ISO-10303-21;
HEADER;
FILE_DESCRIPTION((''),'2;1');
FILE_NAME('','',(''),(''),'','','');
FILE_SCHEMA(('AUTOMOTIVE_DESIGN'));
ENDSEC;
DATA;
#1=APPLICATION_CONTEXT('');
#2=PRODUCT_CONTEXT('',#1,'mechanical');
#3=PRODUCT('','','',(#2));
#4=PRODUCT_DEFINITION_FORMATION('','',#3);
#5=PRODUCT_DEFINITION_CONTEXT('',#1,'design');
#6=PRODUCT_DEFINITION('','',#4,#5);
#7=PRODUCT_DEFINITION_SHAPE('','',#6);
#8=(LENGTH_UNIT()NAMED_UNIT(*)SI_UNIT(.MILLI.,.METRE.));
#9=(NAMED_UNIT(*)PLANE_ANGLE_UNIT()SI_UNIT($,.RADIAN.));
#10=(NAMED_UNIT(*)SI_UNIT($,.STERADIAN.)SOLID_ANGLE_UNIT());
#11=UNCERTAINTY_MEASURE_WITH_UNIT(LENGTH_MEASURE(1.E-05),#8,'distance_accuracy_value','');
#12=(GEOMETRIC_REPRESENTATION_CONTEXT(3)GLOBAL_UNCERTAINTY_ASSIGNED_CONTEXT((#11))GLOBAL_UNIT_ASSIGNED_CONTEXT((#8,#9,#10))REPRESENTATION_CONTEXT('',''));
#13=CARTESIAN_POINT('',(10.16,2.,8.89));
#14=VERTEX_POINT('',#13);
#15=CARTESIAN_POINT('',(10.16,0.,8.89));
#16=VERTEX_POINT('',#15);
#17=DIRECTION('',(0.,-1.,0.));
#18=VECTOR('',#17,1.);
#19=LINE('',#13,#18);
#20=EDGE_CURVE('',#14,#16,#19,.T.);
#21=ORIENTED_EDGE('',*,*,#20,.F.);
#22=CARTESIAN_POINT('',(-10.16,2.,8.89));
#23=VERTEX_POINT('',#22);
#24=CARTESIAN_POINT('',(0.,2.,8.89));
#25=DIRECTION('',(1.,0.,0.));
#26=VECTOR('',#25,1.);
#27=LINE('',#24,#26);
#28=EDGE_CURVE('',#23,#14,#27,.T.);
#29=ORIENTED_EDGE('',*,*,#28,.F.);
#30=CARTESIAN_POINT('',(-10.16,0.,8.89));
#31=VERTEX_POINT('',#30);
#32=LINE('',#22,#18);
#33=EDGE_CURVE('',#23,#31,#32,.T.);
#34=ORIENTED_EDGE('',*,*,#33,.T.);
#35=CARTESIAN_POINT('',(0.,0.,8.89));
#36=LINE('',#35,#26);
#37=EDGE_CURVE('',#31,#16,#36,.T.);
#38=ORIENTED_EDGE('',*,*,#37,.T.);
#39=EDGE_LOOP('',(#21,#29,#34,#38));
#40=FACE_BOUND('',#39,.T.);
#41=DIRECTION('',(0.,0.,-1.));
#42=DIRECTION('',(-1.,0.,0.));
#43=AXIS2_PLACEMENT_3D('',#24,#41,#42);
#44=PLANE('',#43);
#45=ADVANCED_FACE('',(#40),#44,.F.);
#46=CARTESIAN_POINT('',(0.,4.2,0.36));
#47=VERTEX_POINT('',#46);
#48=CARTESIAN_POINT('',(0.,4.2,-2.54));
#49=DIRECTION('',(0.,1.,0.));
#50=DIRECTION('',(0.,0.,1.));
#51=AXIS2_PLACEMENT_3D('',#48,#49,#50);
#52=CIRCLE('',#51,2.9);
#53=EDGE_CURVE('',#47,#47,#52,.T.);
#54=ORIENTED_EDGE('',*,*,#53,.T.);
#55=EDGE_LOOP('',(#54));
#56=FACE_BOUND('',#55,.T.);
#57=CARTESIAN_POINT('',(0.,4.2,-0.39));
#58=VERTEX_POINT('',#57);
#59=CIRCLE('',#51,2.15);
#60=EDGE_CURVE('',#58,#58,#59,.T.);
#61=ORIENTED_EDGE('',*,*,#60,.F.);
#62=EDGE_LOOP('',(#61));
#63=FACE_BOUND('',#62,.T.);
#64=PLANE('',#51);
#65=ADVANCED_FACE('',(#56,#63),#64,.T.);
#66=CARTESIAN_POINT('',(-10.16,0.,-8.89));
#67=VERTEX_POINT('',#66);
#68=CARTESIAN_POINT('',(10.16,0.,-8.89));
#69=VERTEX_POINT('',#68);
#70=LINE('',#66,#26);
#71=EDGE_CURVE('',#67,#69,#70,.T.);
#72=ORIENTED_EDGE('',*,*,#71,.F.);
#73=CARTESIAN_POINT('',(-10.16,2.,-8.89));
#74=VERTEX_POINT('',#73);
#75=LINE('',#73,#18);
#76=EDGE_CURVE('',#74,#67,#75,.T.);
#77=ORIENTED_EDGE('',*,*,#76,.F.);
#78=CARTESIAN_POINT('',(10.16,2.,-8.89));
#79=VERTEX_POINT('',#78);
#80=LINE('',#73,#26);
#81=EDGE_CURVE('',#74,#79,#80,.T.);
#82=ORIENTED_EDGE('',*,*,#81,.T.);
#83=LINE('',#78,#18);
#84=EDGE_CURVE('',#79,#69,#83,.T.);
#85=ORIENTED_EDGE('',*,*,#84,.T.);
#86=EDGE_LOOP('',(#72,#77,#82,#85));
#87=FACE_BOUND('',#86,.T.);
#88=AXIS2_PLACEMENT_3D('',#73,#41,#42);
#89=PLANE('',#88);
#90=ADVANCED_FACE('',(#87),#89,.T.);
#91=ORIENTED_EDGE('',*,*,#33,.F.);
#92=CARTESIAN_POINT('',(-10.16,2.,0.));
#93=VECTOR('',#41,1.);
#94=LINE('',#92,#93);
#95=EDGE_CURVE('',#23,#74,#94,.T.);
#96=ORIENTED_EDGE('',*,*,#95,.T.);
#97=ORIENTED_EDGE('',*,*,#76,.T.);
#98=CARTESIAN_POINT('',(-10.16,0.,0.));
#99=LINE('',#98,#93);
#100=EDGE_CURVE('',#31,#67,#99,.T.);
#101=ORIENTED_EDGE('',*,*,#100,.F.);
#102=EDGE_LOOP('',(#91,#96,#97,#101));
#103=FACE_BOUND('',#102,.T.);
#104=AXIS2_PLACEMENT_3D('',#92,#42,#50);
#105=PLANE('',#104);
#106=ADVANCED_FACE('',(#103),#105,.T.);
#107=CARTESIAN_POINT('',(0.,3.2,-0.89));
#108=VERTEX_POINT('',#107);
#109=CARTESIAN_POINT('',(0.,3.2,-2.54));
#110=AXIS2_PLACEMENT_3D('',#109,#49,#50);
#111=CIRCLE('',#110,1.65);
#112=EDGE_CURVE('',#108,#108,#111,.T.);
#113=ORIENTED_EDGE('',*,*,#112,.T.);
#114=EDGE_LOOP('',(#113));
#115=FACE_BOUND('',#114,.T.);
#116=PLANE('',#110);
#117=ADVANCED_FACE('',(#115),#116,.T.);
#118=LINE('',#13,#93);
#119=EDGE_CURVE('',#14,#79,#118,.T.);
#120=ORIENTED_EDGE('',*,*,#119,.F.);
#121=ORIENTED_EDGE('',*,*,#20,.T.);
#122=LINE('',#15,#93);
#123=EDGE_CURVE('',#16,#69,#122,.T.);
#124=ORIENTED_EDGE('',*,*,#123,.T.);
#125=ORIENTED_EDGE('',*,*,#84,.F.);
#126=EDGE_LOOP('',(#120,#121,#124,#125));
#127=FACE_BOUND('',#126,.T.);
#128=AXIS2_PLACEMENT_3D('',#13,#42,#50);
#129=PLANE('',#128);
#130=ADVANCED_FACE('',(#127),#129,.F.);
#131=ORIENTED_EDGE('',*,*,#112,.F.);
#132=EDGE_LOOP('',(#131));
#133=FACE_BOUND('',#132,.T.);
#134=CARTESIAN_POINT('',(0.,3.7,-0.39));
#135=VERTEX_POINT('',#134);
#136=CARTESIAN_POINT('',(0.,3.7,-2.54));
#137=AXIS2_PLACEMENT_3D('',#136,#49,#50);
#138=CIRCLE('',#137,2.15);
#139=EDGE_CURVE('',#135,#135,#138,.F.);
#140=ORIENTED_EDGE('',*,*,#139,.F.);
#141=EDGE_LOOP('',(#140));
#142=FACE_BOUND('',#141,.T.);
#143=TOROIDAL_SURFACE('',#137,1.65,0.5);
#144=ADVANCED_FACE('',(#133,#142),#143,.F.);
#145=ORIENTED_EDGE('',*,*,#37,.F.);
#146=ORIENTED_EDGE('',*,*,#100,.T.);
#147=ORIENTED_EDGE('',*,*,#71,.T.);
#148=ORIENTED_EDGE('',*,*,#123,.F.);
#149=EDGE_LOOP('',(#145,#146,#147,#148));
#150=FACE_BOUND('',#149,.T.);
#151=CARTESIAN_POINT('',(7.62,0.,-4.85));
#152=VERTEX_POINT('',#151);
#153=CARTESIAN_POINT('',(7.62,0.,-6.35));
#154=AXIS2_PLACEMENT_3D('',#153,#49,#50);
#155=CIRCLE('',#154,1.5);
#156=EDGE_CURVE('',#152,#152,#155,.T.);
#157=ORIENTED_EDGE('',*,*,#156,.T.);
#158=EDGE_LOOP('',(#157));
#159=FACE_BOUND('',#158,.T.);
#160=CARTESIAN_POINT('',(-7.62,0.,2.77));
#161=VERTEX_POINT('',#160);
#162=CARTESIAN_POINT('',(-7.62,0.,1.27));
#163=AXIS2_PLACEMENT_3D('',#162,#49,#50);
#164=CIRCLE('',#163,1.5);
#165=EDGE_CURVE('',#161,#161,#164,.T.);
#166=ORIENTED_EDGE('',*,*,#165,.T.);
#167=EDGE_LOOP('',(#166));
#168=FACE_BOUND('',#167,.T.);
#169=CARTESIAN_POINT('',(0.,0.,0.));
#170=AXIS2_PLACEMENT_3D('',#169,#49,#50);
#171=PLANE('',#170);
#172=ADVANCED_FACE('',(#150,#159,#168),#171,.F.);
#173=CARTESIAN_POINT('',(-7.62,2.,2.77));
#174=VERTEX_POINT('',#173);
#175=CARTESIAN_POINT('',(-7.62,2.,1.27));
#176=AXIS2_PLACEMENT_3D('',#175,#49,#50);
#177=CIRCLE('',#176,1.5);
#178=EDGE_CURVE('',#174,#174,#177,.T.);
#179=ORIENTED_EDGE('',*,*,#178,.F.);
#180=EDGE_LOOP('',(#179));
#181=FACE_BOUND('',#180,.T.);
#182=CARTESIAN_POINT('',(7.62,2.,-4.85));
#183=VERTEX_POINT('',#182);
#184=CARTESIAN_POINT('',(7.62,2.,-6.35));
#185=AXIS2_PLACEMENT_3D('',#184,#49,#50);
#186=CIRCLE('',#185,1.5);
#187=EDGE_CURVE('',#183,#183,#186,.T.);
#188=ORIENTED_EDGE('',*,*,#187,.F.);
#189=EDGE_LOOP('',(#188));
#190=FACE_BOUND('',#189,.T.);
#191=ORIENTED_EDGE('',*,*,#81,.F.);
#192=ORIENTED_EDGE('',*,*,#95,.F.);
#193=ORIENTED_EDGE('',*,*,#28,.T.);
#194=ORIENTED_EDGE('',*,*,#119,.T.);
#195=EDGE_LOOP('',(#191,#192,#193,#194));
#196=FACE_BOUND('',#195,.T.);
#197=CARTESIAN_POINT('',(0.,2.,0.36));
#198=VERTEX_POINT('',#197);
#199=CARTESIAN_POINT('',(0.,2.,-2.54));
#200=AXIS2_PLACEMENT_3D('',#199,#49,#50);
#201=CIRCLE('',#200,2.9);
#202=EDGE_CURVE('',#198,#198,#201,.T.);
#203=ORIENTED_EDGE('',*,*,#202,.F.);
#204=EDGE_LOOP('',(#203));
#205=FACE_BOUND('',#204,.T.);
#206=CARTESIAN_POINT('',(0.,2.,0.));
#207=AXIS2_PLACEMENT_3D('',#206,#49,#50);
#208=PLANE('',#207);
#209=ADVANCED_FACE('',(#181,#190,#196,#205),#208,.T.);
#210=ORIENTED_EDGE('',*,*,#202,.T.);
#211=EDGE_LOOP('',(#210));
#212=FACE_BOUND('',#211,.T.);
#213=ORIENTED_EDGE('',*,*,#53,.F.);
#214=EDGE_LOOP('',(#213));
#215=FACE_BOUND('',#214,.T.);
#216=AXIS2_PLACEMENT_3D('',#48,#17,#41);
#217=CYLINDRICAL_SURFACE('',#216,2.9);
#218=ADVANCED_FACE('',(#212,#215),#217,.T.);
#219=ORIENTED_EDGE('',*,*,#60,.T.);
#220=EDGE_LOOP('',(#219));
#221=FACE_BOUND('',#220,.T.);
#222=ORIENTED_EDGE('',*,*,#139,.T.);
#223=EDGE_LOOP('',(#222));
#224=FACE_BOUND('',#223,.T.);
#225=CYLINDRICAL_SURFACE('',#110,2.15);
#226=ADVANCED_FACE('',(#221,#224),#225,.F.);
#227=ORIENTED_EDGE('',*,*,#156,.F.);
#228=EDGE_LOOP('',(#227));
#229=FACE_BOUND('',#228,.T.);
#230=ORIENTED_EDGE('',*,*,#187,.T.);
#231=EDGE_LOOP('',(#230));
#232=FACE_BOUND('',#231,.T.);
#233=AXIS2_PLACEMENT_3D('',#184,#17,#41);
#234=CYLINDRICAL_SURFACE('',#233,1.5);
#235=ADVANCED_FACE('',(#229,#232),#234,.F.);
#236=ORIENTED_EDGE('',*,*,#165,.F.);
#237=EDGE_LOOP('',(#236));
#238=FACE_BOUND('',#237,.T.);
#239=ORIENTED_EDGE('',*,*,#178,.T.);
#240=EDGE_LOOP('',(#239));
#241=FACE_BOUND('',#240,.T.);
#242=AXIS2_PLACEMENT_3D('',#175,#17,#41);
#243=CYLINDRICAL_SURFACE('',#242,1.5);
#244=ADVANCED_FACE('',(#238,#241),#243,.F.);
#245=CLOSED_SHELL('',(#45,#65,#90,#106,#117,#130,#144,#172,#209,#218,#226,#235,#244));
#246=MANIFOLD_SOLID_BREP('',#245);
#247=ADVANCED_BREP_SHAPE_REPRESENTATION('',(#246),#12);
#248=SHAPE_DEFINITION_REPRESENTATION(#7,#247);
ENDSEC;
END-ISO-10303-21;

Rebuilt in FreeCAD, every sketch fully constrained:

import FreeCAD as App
import Part
import Sketcher
Q = App.Units.Quantity


def edges_at(feature, points):
    """Names of the edges that pass closest to the given points."""
    edges = feature.Shape.Edges
    near = lambda p: min(range(len(edges)), key=lambda i: edges[i].distToShape(Part.Vertex(*p))[0])
    return sorted({f"Edge{near(p) + 1}" for p in points})


def add_polygon(sketch, points):
    """Adds a closed chain of lines whose ends are joined by coincident constraints."""
    first, n = sketch.GeometryCount, len(points)
    for a, b in zip(points, points[1:] + points[:1]):
        sketch.addGeometry(Part.LineSegment(App.Vector(*a, 0), App.Vector(*b, 0)), False)
    for i in range(n):
        sketch.addConstraint(Sketcher.Constraint("Coincident", first + i, 2, first + (i + 1) % n, 1))

doc = App.newDocument("Part")
body = doc.addObject("PartDesign::Body", "Body")

sketch1 = body.newObject("Sketcher::SketchObject", "Sketch")
sketch1.AttachmentSupport = (doc.getObject("XZ_Plane"), [""])
sketch1.MapMode = "FlatFace"
add_polygon(sketch1, [(-10.2, -8.9), (-10.2, 8.9), (10.2, 8.9), (10.2, -8.9)])
sketch1.addGeometry(Part.Circle(App.Vector(-7.6, 1.3, 0), App.Vector(0, 0, 1), 1.5), False)
sketch1.addGeometry(Part.Circle(App.Vector(7.6, -6.3, 0), App.Vector(0, 0, 1), 1.5), False)
sketch1.addConstraint([
    Sketcher.Constraint("Vertical", 0),
    Sketcher.Constraint("Horizontal", 1),
    Sketcher.Constraint("Vertical", 2),
    Sketcher.Constraint("Horizontal", 3),
    Sketcher.Constraint("Equal", 4, 5),
    Sketcher.Constraint("Symmetric", 0, 2, 2, 2, -1, 1),
    Sketcher.Constraint("Diameter", 4, Q("3 mm")),
    Sketcher.Constraint("DistanceX", 1, 1, 1, 2, Q("20.32 mm")),
    Sketcher.Constraint("DistanceY", 0, 1, 0, 2, Q("17.78 mm")),
    Sketcher.Constraint("DistanceX", 4, 3, -1, 1, Q("7.62 mm")),
    Sketcher.Constraint("DistanceY", -1, 1, 4, 3, Q("1.27 mm")),
    Sketcher.Constraint("DistanceX", -1, 1, 5, 3, Q("7.62 mm")),
    Sketcher.Constraint("DistanceY", 5, 3, -1, 1, Q("6.35 mm")),
])
pad1 = body.newObject("PartDesign::Pad", "Pad")
pad1.Profile = sketch1
pad1.Length = 2
pad1.Reversed = True

sketch2 = body.newObject("Sketcher::SketchObject", "Sketch001")
sketch2.AttachmentSupport = (doc.getObject("XZ_Plane"), [""])
sketch2.MapMode = "FlatFace"
sketch2.AttachmentOffset = App.Placement(App.Vector(0, 0, -2), App.Rotation())
sketch2.addGeometry(Part.Circle(App.Vector(0, -2.5, 0), App.Vector(0, 0, 1), 2.9), False)
sketch2.addConstraint([
    Sketcher.Constraint("PointOnObject", 0, 3, -2),
    Sketcher.Constraint("Diameter", 0, Q("5.8 mm")),
    Sketcher.Constraint("DistanceY", 0, 3, -1, 1, Q("2.54 mm")),
])
pad2 = body.newObject("PartDesign::Pad", "Pad001")
pad2.Profile = sketch2
pad2.Length = 2.2
pad2.Reversed = True

sketch3 = body.newObject("Sketcher::SketchObject", "Sketch002")
sketch3.AttachmentSupport = (doc.getObject("XZ_Plane"), [""])
sketch3.MapMode = "FlatFace"
sketch3.AttachmentOffset = App.Placement(App.Vector(0, 0, -4.2), App.Rotation())
sketch3.addGeometry(Part.Circle(App.Vector(0, -2.5, 0), App.Vector(0, 0, 1), 2.1), False)
sketch3.addConstraint([
    Sketcher.Constraint("PointOnObject", 0, 3, -2),
    Sketcher.Constraint("Diameter", 0, Q("4.3 mm")),
    Sketcher.Constraint("DistanceY", 0, 3, -1, 1, Q("2.54 mm")),
])
pocket1 = body.newObject("PartDesign::Pocket", "Pocket")
pocket1.Profile = sketch3
pocket1.Length = 1
pocket1.Reversed = True
doc.recompute()

fillet = body.newObject("PartDesign::Fillet", "Fillet")
fillet.Base = (pocket1, edges_at(pocket1, [(0, 3.2, -4.69)]))
fillet.Radius = 0.5

doc.recompute()
